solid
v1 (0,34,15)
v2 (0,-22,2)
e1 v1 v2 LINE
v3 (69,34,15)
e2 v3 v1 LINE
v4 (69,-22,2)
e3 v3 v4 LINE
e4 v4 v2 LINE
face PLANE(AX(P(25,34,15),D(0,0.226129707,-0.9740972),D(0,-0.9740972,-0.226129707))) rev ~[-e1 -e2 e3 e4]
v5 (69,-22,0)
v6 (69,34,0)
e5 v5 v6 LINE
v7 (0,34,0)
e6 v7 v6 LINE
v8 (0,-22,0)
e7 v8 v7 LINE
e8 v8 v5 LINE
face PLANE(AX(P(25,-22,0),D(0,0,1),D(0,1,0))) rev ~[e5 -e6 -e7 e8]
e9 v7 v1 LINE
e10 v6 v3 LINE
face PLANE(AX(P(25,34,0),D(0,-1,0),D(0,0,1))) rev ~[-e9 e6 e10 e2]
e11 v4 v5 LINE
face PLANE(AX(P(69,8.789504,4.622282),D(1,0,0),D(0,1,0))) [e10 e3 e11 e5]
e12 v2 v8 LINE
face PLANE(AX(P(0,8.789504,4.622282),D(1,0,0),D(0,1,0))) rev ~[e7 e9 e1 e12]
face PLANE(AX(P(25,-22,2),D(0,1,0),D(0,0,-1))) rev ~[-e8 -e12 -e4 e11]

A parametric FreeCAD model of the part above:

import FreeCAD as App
import Part
import Sketcher
from FreeCAD import Vector
Q = App.Units.Quantity

doc = App.newDocument("Part")
params = doc.addObject("Spreadsheet::Sheet", "Params")
for row, (alias, value) in enumerate([
    ("sketch1_width", "56 mm"),
    ("sketch1_height", "2 mm"),
    ("sketch1_height2", "15 mm"),
    ("pad1_length", "25 mm"),
    ("sketch2_width", "56 mm"),
    ("sketch2_height", "2 mm"),
    ("sketch2_height2", "15 mm"),
    ("pad2_length", "44 mm"),
], start=1):
    params.set(f"A{row}", alias)
    params.set(f"B{row}", "=" + value)
    params.setAlias(f"B{row}", alias)

body = doc.addObject("PartDesign::Body", "Body")

# Sketch on YZ plane
sketch1 = body.newObject("Sketcher::SketchObject", "Sketch")
sketch1.AttachmentSupport = (doc.getObject("YZ_Plane"), [""])
sketch1.MapMode = "FlatFace"
sketch1.addGeometry([
    Part.LineSegment(Vector(-22, 2, 0), Vector(-22, 0, 0)),
    Part.LineSegment(Vector(-22, 0, 0), Vector(34, 0, 0)),
    Part.LineSegment(Vector(34, 0, 0), Vector(34, 15, 0)),
    Part.LineSegment(Vector(34, 15, 0), Vector(-22, 2, 0)),
], False)
sketch1.addConstraint([
    Sketcher.Constraint("Coincident", 0, 2, 1, 1),
    Sketcher.Constraint("Coincident", 1, 2, 2, 1),
    Sketcher.Constraint("Coincident", 2, 2, 3, 1),
    Sketcher.Constraint("Coincident", 3, 2, 0, 1),
    Sketcher.Constraint("Vertical", 0),
    Sketcher.Constraint("Horizontal", 1),
    Sketcher.Constraint("Vertical", 2),
    Sketcher.Constraint("PointOnObject", 0, 2, -1),
    Sketcher.Constraint("DistanceX", 1, 1, 1, 2, Q("56 mm")),
    Sketcher.Constraint("DistanceY", 0, 2, 0, 1, Q("2 mm")),
    Sketcher.Constraint("DistanceY", 2, 1, 2, 2, Q("15 mm")),
    Sketcher.Constraint("DistanceX", 0, 2, -1, 1, Q("22 mm")),
])
sketch1.setExpression("Constraints[8]", "Params.sketch1_width")
sketch1.setExpression("Constraints[9]", "Params.sketch1_height")
sketch1.setExpression("Constraints[10]", "Params.sketch1_height2")
pad1 = body.newObject("PartDesign::Pad", "Pad")
pad1.Profile = sketch1
pad1.setExpression("Length", "Params.pad1_length")

# Sketch on YZ plane
sketch2 = body.newObject("Sketcher::SketchObject", "Sketch001")
sketch2.AttachmentSupport = (doc.getObject("YZ_Plane"), [""])
sketch2.MapMode = "FlatFace"
sketch2.AttachmentOffset = App.Placement(Vector(0, 0, 25), App.Rotation())
sketch2.addGeometry([
    Part.LineSegment(Vector(-22, 2, 0), Vector(-22, 0, 0)),
    Part.LineSegment(Vector(-22, 0, 0), Vector(34, 0, 0)),
    Part.LineSegment(Vector(34, 0, 0), Vector(34, 15, 0)),
    Part.LineSegment(Vector(34, 15, 0), Vector(-22, 2, 0)),
], False)
sketch2.addConstraint([
    Sketcher.Constraint("Coincident", 0, 2, 1, 1),
    Sketcher.Constraint("Coincident", 1, 2, 2, 1),
    Sketcher.Constraint("Coincident", 2, 2, 3, 1),
    Sketcher.Constraint("Coincident", 3, 2, 0, 1),
    Sketcher.Constraint("Vertical", 0),
    Sketcher.Constraint("Horizontal", 1),
    Sketcher.Constraint("Vertical", 2),
    Sketcher.Constraint("PointOnObject", 0, 2, -1),
    Sketcher.Constraint("DistanceX", 1, 1, 1, 2, Q("56 mm")),
    Sketcher.Constraint("DistanceY", 0, 2, 0, 1, Q("2 mm")),
    Sketcher.Constraint("DistanceY", 2, 1, 2, 2, Q("15 mm")),
    Sketcher.Constraint("DistanceX", 0, 2, -1, 1, Q("22 mm")),
])
sketch2.setExpression("Constraints[8]", "Params.sketch2_width")
sketch2.setExpression("Constraints[9]", "Params.sketch2_height")
sketch2.setExpression("Constraints[10]", "Params.sketch2_height2")
pad2 = body.newObject("PartDesign::Pad", "Pad001")
pad2.Profile = sketch2
pad2.setExpression("Length", "Params.pad2_length")

doc.recompute()
